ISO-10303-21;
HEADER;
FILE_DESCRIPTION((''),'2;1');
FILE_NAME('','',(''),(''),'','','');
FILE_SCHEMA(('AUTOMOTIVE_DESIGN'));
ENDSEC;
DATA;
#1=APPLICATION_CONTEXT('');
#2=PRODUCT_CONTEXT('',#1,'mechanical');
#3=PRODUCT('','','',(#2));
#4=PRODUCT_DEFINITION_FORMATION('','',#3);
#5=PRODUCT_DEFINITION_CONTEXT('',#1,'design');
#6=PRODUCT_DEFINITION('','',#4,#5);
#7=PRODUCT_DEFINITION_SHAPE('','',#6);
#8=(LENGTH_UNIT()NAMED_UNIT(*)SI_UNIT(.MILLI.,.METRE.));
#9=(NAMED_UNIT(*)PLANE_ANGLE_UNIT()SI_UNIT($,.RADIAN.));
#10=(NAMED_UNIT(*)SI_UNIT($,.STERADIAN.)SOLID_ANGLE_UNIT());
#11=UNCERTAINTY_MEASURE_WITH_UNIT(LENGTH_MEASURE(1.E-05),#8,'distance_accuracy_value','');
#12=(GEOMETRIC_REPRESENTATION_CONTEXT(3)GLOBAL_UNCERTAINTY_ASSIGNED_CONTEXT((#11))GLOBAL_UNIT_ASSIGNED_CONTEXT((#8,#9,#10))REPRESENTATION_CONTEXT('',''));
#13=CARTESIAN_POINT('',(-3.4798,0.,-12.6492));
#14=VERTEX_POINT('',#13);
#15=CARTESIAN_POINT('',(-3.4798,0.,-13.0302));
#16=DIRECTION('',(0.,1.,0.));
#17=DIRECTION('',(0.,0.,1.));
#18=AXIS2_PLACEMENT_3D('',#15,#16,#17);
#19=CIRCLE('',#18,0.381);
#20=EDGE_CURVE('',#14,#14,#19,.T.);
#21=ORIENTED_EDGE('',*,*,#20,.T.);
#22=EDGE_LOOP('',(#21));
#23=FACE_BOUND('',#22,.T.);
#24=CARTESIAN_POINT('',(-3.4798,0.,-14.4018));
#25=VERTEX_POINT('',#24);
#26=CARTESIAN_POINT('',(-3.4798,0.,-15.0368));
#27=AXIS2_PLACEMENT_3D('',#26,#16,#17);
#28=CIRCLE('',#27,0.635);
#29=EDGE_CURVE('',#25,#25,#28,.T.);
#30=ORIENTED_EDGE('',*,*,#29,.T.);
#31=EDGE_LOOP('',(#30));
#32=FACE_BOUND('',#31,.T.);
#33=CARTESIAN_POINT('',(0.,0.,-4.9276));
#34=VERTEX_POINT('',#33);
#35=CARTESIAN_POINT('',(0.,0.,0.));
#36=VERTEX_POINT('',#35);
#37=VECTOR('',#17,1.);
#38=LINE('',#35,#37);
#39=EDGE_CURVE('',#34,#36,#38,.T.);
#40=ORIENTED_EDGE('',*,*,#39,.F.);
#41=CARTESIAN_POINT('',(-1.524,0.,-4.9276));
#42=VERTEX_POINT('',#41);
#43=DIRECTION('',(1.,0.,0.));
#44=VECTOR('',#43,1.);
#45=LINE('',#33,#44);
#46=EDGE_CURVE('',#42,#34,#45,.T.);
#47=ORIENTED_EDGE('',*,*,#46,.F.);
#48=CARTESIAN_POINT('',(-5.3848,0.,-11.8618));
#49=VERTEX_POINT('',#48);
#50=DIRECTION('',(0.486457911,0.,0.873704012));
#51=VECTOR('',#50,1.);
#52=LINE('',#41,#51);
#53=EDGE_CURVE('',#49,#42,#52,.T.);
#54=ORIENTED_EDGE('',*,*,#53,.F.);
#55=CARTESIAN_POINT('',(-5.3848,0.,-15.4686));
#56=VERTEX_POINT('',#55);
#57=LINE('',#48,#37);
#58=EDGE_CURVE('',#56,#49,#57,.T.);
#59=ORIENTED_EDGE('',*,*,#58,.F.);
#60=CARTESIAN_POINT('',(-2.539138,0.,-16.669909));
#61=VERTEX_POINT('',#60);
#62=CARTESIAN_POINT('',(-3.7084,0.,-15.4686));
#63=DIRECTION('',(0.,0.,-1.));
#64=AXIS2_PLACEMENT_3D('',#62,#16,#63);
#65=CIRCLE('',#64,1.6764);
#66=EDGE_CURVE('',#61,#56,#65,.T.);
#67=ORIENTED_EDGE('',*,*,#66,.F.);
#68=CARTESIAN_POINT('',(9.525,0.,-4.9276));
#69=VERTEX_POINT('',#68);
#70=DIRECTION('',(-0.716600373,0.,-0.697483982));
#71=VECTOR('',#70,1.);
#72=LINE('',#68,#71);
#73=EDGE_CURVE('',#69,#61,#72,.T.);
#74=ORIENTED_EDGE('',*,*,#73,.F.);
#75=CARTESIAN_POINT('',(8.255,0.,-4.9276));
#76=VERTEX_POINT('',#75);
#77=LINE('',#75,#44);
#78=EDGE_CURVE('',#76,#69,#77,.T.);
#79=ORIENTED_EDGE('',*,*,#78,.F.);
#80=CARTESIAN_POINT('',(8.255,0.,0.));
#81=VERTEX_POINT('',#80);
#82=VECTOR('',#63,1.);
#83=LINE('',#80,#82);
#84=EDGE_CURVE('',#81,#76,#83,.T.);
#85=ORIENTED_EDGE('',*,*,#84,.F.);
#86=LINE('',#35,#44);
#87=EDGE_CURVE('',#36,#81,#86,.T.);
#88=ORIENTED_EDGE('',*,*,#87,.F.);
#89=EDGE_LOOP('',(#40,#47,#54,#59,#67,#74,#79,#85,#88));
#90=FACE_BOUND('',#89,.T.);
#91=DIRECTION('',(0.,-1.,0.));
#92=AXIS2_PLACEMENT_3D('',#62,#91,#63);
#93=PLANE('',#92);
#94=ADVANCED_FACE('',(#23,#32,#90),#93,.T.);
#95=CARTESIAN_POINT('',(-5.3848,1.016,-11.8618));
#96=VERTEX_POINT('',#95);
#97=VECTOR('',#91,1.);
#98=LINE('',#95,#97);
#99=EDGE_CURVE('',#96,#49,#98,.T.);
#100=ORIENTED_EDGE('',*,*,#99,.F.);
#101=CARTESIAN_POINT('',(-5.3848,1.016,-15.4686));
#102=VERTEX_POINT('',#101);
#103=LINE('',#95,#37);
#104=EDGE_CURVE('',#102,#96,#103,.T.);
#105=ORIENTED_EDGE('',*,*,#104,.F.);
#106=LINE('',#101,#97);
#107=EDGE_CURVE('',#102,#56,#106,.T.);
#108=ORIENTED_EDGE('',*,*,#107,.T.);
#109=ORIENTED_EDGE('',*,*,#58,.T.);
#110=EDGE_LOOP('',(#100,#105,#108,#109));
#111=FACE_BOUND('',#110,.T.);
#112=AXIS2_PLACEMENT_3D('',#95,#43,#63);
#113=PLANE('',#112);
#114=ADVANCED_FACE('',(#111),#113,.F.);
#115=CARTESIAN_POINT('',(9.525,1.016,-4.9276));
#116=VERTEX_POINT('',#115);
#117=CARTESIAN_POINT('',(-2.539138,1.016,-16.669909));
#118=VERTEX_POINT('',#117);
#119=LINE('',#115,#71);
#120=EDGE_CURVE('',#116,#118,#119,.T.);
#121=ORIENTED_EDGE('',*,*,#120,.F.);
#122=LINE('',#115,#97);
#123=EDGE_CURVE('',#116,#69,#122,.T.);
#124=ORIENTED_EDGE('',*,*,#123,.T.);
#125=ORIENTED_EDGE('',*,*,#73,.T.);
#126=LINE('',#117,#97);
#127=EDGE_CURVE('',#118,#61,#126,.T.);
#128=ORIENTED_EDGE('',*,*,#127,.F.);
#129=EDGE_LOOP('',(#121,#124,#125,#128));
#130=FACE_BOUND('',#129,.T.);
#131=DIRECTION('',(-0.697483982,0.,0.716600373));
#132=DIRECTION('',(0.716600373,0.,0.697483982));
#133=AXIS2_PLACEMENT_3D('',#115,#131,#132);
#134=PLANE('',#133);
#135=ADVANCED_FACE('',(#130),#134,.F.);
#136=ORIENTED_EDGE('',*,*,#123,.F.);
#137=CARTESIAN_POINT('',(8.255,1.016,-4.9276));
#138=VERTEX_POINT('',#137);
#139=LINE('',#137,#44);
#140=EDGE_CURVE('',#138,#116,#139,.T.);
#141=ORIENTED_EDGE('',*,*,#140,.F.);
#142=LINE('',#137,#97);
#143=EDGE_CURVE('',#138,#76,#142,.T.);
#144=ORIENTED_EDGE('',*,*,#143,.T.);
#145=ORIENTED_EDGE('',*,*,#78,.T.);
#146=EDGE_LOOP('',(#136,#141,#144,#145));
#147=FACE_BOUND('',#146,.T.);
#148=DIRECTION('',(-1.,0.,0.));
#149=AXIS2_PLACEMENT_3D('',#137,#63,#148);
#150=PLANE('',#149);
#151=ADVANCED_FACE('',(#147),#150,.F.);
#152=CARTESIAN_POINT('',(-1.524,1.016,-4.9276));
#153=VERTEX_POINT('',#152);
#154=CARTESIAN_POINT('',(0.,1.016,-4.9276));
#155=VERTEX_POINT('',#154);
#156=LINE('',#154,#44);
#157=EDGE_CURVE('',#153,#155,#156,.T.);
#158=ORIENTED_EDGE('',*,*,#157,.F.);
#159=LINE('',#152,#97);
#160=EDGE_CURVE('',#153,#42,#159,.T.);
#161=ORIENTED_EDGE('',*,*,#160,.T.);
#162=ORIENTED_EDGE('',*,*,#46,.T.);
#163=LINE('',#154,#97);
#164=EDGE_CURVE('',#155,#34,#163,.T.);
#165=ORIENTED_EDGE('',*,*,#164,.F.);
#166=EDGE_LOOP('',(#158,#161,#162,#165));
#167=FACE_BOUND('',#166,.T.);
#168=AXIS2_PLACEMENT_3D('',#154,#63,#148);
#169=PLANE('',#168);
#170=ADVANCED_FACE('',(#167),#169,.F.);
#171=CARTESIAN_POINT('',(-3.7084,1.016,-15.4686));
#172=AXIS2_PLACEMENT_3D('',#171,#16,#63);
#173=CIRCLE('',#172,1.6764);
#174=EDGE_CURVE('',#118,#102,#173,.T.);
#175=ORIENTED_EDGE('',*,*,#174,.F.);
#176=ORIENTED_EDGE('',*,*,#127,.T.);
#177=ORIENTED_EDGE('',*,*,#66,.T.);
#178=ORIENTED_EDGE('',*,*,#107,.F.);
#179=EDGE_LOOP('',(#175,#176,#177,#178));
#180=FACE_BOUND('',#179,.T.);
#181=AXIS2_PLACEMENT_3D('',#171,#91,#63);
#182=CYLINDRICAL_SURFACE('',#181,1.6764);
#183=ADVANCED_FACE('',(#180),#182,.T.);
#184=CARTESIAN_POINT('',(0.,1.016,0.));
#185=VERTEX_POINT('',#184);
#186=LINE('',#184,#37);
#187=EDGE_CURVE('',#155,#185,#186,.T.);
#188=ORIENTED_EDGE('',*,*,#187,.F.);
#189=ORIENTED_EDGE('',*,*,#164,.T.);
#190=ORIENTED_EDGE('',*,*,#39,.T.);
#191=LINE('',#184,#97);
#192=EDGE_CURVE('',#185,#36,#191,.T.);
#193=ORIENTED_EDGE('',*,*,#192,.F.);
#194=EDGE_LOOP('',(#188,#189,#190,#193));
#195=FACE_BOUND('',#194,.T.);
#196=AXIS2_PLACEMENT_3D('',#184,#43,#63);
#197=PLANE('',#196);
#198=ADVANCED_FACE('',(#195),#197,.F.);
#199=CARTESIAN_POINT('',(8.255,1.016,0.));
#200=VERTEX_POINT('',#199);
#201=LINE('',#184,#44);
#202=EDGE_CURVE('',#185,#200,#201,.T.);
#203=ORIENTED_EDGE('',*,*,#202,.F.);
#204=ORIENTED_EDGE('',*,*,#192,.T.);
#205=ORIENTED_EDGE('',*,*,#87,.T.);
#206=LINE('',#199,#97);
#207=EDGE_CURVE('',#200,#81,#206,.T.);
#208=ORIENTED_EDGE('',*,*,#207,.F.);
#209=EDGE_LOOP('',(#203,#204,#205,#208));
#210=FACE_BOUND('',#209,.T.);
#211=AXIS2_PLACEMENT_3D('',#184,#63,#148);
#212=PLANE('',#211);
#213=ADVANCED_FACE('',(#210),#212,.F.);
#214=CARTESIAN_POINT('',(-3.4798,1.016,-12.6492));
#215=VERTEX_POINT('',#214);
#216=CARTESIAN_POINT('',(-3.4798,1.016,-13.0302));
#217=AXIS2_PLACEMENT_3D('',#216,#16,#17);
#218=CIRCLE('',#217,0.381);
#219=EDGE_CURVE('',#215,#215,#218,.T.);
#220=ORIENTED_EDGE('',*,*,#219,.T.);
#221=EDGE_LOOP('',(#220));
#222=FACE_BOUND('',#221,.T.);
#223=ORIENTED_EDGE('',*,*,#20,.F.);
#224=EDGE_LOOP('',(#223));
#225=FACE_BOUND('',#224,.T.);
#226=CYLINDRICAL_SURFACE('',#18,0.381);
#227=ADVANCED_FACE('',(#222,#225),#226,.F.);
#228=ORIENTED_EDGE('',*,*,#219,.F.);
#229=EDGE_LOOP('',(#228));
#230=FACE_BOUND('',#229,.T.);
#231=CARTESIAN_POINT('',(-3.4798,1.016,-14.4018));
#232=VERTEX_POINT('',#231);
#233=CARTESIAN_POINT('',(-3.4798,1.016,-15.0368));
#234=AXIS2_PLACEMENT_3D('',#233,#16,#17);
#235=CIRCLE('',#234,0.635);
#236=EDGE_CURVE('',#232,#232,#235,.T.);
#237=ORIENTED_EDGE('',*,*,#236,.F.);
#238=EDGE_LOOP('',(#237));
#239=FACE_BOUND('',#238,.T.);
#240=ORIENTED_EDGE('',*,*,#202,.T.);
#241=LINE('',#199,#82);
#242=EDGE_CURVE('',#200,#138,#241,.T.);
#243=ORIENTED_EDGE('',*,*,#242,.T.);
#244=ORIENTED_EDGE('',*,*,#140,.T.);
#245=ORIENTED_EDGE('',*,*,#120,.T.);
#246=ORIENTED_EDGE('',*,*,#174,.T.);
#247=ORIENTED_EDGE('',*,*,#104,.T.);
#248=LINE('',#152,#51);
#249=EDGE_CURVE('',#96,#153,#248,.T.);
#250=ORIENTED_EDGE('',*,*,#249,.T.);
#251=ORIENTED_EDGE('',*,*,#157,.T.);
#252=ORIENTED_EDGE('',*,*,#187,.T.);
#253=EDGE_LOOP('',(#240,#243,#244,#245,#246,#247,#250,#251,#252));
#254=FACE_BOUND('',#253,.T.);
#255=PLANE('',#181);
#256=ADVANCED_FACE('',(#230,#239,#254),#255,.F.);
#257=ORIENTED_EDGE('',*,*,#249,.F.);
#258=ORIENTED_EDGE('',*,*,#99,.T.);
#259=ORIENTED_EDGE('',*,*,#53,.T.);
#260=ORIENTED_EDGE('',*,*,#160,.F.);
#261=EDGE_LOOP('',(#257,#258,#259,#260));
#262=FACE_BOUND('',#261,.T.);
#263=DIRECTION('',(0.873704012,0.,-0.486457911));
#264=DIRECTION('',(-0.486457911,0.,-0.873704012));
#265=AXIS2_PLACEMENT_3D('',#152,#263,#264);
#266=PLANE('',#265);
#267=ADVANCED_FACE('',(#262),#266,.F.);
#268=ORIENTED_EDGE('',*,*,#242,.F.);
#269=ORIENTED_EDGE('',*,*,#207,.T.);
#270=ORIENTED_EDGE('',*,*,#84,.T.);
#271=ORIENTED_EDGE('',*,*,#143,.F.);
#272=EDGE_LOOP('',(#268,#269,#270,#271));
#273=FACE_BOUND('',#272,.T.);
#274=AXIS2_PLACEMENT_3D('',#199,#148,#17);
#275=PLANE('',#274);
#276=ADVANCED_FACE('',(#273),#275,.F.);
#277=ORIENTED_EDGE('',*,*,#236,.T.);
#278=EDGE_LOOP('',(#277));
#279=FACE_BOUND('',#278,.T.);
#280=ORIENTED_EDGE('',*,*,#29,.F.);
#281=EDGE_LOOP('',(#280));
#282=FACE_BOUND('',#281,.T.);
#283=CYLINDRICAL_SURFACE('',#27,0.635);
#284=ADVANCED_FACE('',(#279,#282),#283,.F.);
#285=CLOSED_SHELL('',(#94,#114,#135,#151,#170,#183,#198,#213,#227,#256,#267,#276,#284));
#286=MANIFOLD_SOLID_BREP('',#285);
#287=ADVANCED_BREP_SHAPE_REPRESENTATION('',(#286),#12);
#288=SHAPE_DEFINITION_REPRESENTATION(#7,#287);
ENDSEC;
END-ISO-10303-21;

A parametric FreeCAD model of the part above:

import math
import FreeCAD as App
import Part
import Sketcher
from FreeCAD import Vector
Q = App.Units.Quantity

doc = App.newDocument("Part")
body = doc.addObject("PartDesign::Body", "Body")

# Sketch on XZ plane
sketch1 = doc.addObject("Sketcher::SketchObject", "Sketch")
body.addObject(sketch1)
sketch1.AttachmentSupport = (doc.XZ_Plane, [""])
sketch1.MapMode = "FlatFace"
sketch1.addGeometry([
    Part.LineSegment(Vector(0, 0, 0), Vector(8.255, 0, 0)),  # 0
    Part.LineSegment(Vector(8.255, 0, 0), Vector(8.255, -4.9276, 0)),  # 1
    Part.LineSegment(Vector(8.255, -4.9276, 0), Vector(9.525, -4.9276, 0)),  # 2
    Part.LineSegment(Vector(9.525, -4.9276, 0), Vector(-2.539138, -16.669909, 0)),  # 3
    Part.ArcOfCircle(Part.Circle(Vector(-3.7084, -15.4686, 0), Vector(0, 0, 1), 1.6764), math.radians(180), math.radians(314.22549)),  # 4
    Part.LineSegment(Vector(-5.3848, -15.4686, 0), Vector(-5.3848, -11.8618, 0)),  # 5
    Part.LineSegment(Vector(-5.3848, -11.8618, 0), Vector(-1.524, -4.9276, 0)),  # 6
    Part.LineSegment(Vector(-1.524, -4.9276, 0), Vector(0, -4.9276, 0)),  # 7
    Part.LineSegment(Vector(0, -4.9276, 0), Vector(0, 0, 0)),  # 8
], False)
sketch1.addConstraint([
    Sketcher.Constraint("Coincident", 0, 2, 1, 1),
    Sketcher.Constraint("Coincident", 1, 2, 2, 1),
    Sketcher.Constraint("Coincident", 2, 2, 3, 1),
    Sketcher.Constraint("Tangent", 3, 2, 4, 2),
    Sketcher.Constraint("Tangent", 4, 1, 5, 1),
    Sketcher.Constraint("Coincident", 5, 2, 6, 1),
    Sketcher.Constraint("Coincident", 6, 2, 7, 1),
    Sketcher.Constraint("Coincident", 7, 2, 8, 1),
    Sketcher.Constraint("Coincident", 8, 2, 0, 1),
    Sketcher.Constraint("Horizontal", 0),
    Sketcher.Constraint("Vertical", 1),
    Sketcher.Constraint("Horizontal", 2),
    Sketcher.Constraint("Vertical", 5),
    Sketcher.Constraint("Horizontal", 7),
    Sketcher.Constraint("Vertical", 8),
    Sketcher.Constraint("Coincident", 8, 2, -1, 1),
    Sketcher.Constraint("Horizontal", 2, 2, 6, 2),
    Sketcher.Constraint("Radius", 4, Q("0.066 in")),
    Sketcher.Constraint("DistanceX", 2, 1, 2, 2, Q("0.05 in")),
    Sketcher.Constraint("DistanceX", 7, 1, 7, 2, Q("0.06 in")),
    Sketcher.Constraint("DistanceX", 0, 1, 0, 2, Q("0.325 in")),
    Sketcher.Constraint("DistanceY", 1, 2, 1, 1, Q("0.194 in")),
    Sketcher.Constraint("DistanceY", 5, 1, 5, 2, Q("0.142 in")),
    Sketcher.Constraint("DistanceX", 4, 3, -1, 1, Q("0.146 in")),
    Sketcher.Constraint("DistanceY", 4, 3, -1, 1, Q("0.609 in")),
])
pad1 = doc.addObject("PartDesign::Pad", "Pad")
body.addObject(pad1)
pad1.Profile = sketch1
pad1.Length = Q("0.04 in")
pad1.Reversed = True

# Sketch on XZ plane
sketch2 = doc.addObject("Sketcher::SketchObject", "Sketch001")
body.addObject(sketch2)
sketch2.AttachmentSupport = (doc.XZ_Plane, [""])
sketch2.MapMode = "FlatFace"
sketch2.AttachmentOffset = App.Placement(Vector(0, 0, -0.04 * 25.4), App.Rotation())
sketch2.addGeometry([
    Part.Circle(Vector(-3.4798, -15.0368, 0), Vector(0, 0, 1), 0.635),
    Part.Circle(Vector(-3.4798, -13.0302, 0), Vector(0, 0, 1), 0.381),
], False)
sketch2.addConstraint([
    Sketcher.Constraint("Vertical", 0, 3, 1, 3),
    Sketcher.Constraint("Diameter", 0, Q("0.05 in")),
    Sketcher.Constraint("Diameter", 1, Q("0.03 in")),
    Sketcher.Constraint("DistanceX", 0, 3, -1, 1, Q("0.137 in")),
    Sketcher.Constraint("DistanceY", 0, 3, -1, 1, Q("0.592 in")),
    Sketcher.Constraint("DistanceY", 1, 3, -1, 1, Q("0.513 in")),
])
pocket1 = doc.addObject("PartDesign::Pocket", "Pocket")
body.addObject(pocket1)
pocket1.Profile = sketch2
pocket1.Type = "ThroughAll"
pocket1.Reversed = True

doc.recompute()
